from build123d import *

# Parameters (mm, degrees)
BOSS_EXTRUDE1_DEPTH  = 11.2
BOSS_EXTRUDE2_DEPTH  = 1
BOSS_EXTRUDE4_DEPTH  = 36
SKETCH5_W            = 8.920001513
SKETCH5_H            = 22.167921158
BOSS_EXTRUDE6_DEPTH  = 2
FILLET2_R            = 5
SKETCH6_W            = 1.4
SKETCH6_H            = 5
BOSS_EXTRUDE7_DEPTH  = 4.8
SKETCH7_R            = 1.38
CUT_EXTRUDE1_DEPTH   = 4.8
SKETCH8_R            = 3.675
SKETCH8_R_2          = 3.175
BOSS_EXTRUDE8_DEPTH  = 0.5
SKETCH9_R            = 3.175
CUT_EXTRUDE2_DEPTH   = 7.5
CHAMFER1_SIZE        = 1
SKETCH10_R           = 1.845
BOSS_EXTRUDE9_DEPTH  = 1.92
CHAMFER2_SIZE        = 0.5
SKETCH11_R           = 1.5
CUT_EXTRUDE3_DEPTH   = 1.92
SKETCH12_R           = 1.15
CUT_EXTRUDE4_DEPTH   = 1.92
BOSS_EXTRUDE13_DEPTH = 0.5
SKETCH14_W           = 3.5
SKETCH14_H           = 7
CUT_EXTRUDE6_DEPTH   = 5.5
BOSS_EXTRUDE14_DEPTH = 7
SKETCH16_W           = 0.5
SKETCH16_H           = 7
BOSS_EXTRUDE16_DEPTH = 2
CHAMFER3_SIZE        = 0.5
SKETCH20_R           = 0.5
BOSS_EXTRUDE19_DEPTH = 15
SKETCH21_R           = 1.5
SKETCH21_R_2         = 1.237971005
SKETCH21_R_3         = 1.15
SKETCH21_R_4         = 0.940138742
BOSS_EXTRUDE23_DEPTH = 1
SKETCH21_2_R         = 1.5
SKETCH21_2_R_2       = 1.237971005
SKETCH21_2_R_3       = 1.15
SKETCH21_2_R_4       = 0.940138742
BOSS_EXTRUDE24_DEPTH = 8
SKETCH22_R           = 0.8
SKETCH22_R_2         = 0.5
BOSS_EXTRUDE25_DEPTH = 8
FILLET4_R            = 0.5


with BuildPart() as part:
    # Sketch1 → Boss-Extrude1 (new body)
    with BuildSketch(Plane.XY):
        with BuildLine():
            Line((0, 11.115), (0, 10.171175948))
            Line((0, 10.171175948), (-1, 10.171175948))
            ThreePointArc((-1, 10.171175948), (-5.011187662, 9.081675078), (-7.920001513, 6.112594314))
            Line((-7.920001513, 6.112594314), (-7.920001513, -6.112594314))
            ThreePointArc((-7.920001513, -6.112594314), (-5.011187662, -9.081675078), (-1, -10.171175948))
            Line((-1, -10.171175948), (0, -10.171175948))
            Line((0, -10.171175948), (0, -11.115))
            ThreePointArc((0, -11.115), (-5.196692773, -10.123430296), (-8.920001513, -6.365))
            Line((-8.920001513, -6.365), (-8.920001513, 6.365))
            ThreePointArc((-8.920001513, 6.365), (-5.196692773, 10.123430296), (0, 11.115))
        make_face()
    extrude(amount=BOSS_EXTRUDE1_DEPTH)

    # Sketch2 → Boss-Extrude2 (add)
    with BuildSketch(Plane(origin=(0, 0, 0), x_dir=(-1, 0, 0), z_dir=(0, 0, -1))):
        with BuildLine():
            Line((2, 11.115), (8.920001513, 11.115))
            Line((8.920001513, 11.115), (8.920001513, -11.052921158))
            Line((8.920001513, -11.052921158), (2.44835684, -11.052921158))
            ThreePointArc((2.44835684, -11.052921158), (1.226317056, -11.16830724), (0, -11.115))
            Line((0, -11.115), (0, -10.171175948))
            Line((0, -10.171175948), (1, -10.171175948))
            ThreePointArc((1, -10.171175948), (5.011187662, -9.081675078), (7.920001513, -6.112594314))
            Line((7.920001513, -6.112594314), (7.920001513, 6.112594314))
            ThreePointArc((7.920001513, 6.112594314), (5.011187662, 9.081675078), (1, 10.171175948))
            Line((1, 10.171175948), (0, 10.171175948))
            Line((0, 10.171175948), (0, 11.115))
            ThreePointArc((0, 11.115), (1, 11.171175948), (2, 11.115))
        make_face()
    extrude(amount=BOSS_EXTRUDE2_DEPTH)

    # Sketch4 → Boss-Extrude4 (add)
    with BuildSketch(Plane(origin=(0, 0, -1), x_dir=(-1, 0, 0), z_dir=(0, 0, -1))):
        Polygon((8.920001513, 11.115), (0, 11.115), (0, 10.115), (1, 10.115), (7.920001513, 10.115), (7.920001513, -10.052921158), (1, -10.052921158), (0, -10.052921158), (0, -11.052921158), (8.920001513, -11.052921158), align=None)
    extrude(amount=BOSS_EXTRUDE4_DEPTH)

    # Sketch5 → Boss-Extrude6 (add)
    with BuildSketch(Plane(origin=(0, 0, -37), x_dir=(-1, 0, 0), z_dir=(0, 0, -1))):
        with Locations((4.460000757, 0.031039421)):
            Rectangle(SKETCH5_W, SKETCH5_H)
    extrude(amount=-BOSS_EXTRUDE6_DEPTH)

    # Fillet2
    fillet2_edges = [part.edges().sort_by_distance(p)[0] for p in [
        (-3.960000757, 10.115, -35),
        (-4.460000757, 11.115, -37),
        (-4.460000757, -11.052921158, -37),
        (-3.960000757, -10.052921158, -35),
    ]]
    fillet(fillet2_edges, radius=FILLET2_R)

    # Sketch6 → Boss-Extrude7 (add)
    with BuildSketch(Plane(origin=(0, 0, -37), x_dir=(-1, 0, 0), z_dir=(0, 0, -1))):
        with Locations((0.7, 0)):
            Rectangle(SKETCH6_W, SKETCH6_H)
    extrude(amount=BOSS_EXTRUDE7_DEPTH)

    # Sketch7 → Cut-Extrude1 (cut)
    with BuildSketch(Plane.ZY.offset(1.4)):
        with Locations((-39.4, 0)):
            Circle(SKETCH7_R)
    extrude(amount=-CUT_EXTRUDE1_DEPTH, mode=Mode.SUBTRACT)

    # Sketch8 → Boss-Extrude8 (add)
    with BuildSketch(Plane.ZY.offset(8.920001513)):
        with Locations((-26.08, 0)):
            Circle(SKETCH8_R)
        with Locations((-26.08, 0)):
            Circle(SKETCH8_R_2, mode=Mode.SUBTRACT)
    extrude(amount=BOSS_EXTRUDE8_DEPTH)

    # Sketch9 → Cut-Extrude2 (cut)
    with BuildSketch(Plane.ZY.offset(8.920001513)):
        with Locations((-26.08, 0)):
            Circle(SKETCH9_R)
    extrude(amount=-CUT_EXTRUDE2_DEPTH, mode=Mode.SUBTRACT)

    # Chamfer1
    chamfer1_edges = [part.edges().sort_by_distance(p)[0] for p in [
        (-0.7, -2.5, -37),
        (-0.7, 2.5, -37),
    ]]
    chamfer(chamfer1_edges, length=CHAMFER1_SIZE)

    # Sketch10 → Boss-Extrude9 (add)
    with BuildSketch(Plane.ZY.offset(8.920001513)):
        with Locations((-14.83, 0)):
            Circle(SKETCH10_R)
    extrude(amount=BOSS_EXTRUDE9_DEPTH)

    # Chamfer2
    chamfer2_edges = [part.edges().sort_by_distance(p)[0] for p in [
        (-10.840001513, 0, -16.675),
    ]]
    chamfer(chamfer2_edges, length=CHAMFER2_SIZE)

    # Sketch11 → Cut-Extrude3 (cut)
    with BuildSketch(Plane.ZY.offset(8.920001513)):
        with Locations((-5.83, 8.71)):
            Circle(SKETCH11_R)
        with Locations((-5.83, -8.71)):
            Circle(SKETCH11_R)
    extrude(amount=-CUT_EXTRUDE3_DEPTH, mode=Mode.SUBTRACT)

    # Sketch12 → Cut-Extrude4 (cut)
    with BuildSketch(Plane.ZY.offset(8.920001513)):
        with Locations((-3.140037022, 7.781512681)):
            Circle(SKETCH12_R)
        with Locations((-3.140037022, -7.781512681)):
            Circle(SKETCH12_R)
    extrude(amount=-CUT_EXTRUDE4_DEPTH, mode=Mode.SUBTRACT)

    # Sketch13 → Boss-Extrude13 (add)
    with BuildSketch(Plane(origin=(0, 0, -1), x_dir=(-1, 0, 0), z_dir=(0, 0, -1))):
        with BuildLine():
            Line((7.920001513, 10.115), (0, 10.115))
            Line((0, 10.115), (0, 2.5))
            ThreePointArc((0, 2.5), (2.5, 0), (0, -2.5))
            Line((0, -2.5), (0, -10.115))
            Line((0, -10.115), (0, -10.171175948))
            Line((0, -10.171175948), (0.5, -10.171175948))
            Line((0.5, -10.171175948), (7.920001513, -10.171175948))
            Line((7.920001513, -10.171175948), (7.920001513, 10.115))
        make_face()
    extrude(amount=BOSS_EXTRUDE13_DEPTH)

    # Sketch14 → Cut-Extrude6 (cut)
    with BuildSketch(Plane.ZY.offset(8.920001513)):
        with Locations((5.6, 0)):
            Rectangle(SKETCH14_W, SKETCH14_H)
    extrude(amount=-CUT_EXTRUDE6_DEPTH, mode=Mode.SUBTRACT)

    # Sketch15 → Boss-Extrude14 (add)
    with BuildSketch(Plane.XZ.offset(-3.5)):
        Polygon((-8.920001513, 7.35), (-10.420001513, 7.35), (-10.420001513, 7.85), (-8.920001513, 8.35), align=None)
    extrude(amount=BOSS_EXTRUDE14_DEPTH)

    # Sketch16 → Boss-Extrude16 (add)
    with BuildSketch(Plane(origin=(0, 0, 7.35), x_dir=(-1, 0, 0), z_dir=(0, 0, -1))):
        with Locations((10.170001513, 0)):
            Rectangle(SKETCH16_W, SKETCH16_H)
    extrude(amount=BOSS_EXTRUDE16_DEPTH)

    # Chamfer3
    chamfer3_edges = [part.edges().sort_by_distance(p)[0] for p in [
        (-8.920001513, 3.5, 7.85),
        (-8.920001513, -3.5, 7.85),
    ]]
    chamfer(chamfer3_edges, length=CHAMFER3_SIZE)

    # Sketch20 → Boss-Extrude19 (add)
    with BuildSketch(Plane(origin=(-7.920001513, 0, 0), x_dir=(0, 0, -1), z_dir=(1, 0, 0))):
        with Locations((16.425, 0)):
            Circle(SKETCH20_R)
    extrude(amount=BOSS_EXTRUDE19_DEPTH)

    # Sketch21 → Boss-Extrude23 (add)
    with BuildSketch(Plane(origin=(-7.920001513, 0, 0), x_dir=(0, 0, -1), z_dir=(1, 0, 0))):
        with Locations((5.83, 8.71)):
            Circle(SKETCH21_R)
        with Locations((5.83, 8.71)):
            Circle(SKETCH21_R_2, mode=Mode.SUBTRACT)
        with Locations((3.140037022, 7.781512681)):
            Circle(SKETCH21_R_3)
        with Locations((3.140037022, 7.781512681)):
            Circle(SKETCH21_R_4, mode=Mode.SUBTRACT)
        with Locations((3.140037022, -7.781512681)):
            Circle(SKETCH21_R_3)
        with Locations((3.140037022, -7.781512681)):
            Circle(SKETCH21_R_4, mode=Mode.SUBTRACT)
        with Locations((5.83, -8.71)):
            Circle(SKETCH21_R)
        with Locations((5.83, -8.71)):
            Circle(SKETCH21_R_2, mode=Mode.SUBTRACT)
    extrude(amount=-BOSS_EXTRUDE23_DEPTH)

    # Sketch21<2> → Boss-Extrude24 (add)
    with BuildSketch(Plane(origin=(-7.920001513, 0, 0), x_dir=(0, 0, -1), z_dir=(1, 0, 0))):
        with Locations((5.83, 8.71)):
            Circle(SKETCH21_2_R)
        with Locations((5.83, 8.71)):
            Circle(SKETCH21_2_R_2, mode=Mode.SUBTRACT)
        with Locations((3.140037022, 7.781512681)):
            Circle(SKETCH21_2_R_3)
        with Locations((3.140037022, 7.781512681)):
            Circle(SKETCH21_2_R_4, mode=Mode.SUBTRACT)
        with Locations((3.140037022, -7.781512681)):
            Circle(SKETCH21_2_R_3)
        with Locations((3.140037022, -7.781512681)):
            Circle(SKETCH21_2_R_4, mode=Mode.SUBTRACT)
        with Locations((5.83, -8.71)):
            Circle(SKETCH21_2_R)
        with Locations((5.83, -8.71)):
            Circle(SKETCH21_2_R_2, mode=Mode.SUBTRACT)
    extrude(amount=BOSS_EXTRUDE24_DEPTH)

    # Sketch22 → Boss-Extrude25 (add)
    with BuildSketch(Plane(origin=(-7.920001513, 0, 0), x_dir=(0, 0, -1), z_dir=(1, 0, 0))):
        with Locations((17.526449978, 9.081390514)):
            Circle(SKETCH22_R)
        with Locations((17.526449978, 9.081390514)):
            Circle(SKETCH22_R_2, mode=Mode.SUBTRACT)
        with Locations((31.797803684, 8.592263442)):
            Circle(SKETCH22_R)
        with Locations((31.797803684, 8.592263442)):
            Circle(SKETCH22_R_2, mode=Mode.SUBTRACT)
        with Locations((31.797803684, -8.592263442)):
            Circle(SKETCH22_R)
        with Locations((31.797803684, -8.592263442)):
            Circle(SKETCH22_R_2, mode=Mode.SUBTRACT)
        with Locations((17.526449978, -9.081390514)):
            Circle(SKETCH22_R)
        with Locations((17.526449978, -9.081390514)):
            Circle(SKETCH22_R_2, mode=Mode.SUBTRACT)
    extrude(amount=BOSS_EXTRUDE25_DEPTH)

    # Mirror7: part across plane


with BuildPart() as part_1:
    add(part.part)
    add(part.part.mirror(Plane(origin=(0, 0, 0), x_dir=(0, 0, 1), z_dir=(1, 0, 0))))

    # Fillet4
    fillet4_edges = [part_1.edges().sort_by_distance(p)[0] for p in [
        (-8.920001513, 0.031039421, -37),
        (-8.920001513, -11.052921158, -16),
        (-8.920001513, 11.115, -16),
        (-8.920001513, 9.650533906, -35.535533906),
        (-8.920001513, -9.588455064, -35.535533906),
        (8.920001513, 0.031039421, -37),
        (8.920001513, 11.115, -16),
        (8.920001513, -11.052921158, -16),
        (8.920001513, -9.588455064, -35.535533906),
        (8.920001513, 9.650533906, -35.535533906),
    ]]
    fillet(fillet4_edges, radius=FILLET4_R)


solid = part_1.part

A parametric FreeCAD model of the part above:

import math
import FreeCAD as App
import Part
import Sketcher


def edges_at(feature, points):
    """Names of the edges that pass closest to the given points."""
    edges = feature.Shape.Edges
    near = lambda p: min(range(len(edges)), key=lambda i: edges[i].distToShape(Part.Vertex(*p))[0])
    return sorted({f"Edge{near(p) + 1}" for p in points})

doc = App.newDocument("Part")
body = doc.addObject("PartDesign::Body", "Body")

sketch1 = body.newObject("Sketcher::SketchObject", "Sketch")
sketch1.AttachmentSupport = (doc.getObject("XY_Plane"), [""])
sketch1.MapMode = "FlatFace"
sketch1.addGeometry([
    Part.LineSegment(App.Vector(0, 10.2, 0), App.Vector(0, 11.1, 0)),
    Part.ArcOfCircle(Part.Circle(App.Vector(-1, 2.2, 0), App.Vector(0, 0, 1), 8.9), math.radians(84), math.radians(153)),
    Part.LineSegment(App.Vector(-8.9, 6.4, 0), App.Vector(-8.9, -6.4, 0)),
    Part.ArcOfCircle(Part.Circle(App.Vector(-1, -2.2, 0), App.Vector(0, 0, 1), 8.9), math.radians(-153), math.radians(-84)),
    Part.LineSegment(App.Vector(0, -11.1, 0), App.Vector(0, -10.2, 0)),
    Part.LineSegment(App.Vector(0, -10.2, 0), App.Vector(-1, -10.2, 0)),
    Part.ArcOfCircle(Part.Circle(App.Vector(-1, -2.2, 0), App.Vector(0, 0, 1), 7.9), math.radians(-151), math.radians(-90)),
    Part.LineSegment(App.Vector(-7.9, -6.1, 0), App.Vector(-7.9, 6.1, 0)),
    Part.ArcOfCircle(Part.Circle(App.Vector(-1, 2.2, 0), App.Vector(0, 0, 1), 7.9), math.radians(90), math.radians(151)),
    Part.LineSegment(App.Vector(-1, 10.2, 0), App.Vector(0, 10.2, 0)),
], False)
sketch1.addConstraint([
    Sketcher.Constraint("Coincident", 0, 2, 1, 1),
    Sketcher.Constraint("Coincident", 1, 2, 2, 1),
    Sketcher.Constraint("Coincident", 2, 2, 3, 1),
    Sketcher.Constraint("Coincident", 3, 2, 4, 1),
    Sketcher.Constraint("Coincident", 4, 2, 5, 1),
    Sketcher.Constraint("Tangent", 5, 2, 6, 2),
    Sketcher.Constraint("Coincident", 6, 1, 7, 1),
    Sketcher.Constraint("Coincident", 7, 2, 8, 2),
    Sketcher.Constraint("Tangent", 8, 1, 9, 1),
    Sketcher.Constraint("Coincident", 9, 2, 0, 1),
    Sketcher.Constraint("Vertical", 0),
    Sketcher.Constraint("Vertical", 2),
    Sketcher.Constraint("Vertical", 4),
    Sketcher.Constraint("Horizontal", 5),
    Sketcher.Constraint("Vertical", 7),
    Sketcher.Constraint("Horizontal", 9),
    Sketcher.Constraint("Coincident", 6, 3, 3, 3),
    Sketcher.Constraint("Coincident", 8, 3, 1, 3),
    Sketcher.Constraint("Equal", 1, 3),
    Sketcher.Constraint("Equal", 6, 8),
    Sketcher.Constraint("Symmetric", 0, 2, 3, 2, -1, 1),
    Sketcher.Constraint("Symmetric", 1, 3, 3, 3, -1),
    Sketcher.Constraint("DistanceX", 5, 2, 5, 1, 1.0),
    Sketcher.Constraint("DistanceX", 2, 2, 6, 1, 1.0),
    Sketcher.Constraint("DistanceY", 2, 2, 2, 1, 12.73),
    Sketcher.Constraint("DistanceX", 1, 2, -1, 1, 8.920002),
    Sketcher.Constraint("DistanceY", 1, 2, 0, 2, 4.75),
    Sketcher.Constraint("Radius", 6, 7.928694),
])
pad1 = body.newObject("PartDesign::Pad", "Pad")
pad1.Profile = sketch1
pad1.Length = 11.2

sketch2 = body.newObject("Sketcher::SketchObject", "Sketch001")
sketch2.AttachmentSupport = (doc.getObject("XY_Plane"), [""])
sketch2.MapMode = "FlatFace"
sketch2.addGeometry([
    Part.LineSegment(App.Vector(-8.9, 11.1, 0), App.Vector(-2, 11.1, 0)),
    Part.ArcOfCircle(Part.Circle(App.Vector(-1, 2.2, 0), App.Vector(0, 0, 1), 8.9), math.radians(83.57), math.radians(96.43)),
    Part.LineSegment(App.Vector(0, 11.1, 0), App.Vector(0, 10.2, 0)),
    Part.LineSegment(App.Vector(0, 10.2, 0), App.Vector(-1, 10.2, 0)),
    Part.ArcOfCircle(Part.Circle(App.Vector(-1, 2.2, 0), App.Vector(0, 0, 1), 7.9), math.radians(90), math.radians(151)),
    Part.LineSegment(App.Vector(-7.9, 6.1, 0), App.Vector(-7.9, -6.1, 0)),
    Part.ArcOfCircle(Part.Circle(App.Vector(-1, -2.2, 0), App.Vector(0, 0, 1), 7.9), math.radians(-151), math.radians(-90)),
    Part.LineSegment(App.Vector(-1, -10.2, 0), App.Vector(0, -10.2, 0)),
    Part.LineSegment(App.Vector(0, -10.2, 0), App.Vector(0, -11.1, 0)),
    Part.ArcOfCircle(Part.Circle(App.Vector(-1, -2.2, 0), App.Vector(0, 0, 1), 8.9), math.radians(-99.34), math.radians(-83.57)),
    Part.LineSegment(App.Vector(-2.4, -11.1, 0), App.Vector(-8.9, -11.1, 0)),
    Part.LineSegment(App.Vector(-8.9, -11.1, 0), App.Vector(-8.9, 11.1, 0)),
], False)
sketch2.addConstraint([
    Sketcher.Constraint("Coincident", 0, 2, 1, 2),
    Sketcher.Constraint("Coincident", 1, 1, 2, 1),
    Sketcher.Constraint("Coincident", 2, 2, 3, 1),
    Sketcher.Constraint("Tangent", 3, 2, 4, 1),
    Sketcher.Constraint("Coincident", 4, 2, 5, 1),
    Sketcher.Constraint("Coincident", 5, 2, 6, 1),
    Sketcher.Constraint("Tangent", 6, 2, 7, 1),
    Sketcher.Constraint("Coincident", 7, 2, 8, 1),
    Sketcher.Constraint("Coincident", 8, 2, 9, 2),
    Sketcher.Constraint("Coincident", 9, 1, 10, 1),
    Sketcher.Constraint("Coincident", 10, 2, 11, 1),
    Sketcher.Constraint("Coincident", 11, 2, 0, 1),
    Sketcher.Constraint("Horizontal", 0),
    Sketcher.Constraint("Vertical", 2),
    Sketcher.Constraint("Horizontal", 3),
    Sketcher.Constraint("Vertical", 5),
    Sketcher.Constraint("Horizontal", 7),
    Sketcher.Constraint("Vertical", 8),
    Sketcher.Constraint("Horizontal", 10),
    Sketcher.Constraint("Vertical", 11),
    Sketcher.Constraint("Coincident", 4, 3, 1, 3),
    Sketcher.Constraint("Coincident", 9, 3, 6, 3),
    Sketcher.Constraint("Equal", 4, 6),
    Sketcher.Constraint("Equal", 1, 9),
    Sketcher.Constraint("Symmetric", 2, 2, 7, 2, -1, 1),
    Sketcher.Constraint("Symmetric", 1, 1, 8, 2, -1),
    Sketcher.Constraint("Horizontal", 0, 2, 1, 1),
    Sketcher.Constraint("DistanceX", 3, 2, 3, 1, 1.0),
    Sketcher.Constraint("DistanceX", 10, 2, 5, 2, 1.0),
    Sketcher.Constraint("DistanceX", 0, 1, 0, 2, 6.920002),
    Sketcher.Constraint("DistanceY", -1, 1, 0, 2, 11.115),
    Sketcher.Constraint("Radius", 1, 8.928694),
    Sketcher.Constraint("Radius", 4, 7.928694),
    Sketcher.Constraint("DistanceY", 11, 1, 11, 2, 22.167921),
])
pad2 = body.newObject("PartDesign::Pad", "Pad001")
pad2.Profile = sketch2
pad2.Length = 1
pad2.Reversed = True

sketch3 = body.newObject("Sketcher::SketchObject", "Sketch002")
sketch3.AttachmentSupport = (doc.getObject("XY_Plane"), [""])
sketch3.MapMode = "FlatFace"
sketch3.AttachmentOffset = App.Placement(App.Vector(0, 0, -1), App.Rotation())
sketch3.addGeometry([
    Part.LineSegment(App.Vector(-8.9, 11.1, 0), App.Vector(0, 11.1, 0)),
    Part.LineSegment(App.Vector(0, 11.1, 0), App.Vector(0, 10.1, 0)),
    Part.LineSegment(App.Vector(0, 10.1, 0), App.Vector(-7.9, 10.1, 0)),
    Part.LineSegment(App.Vector(-7.9, 10.1, 0), App.Vector(-7.9, -10.1, 0)),
    Part.LineSegment(App.Vector(-7.9, -10.1, 0), App.Vector(0, -10.1, 0)),
    Part.LineSegment(App.Vector(0, -10.1, 0), App.Vector(0, -11.1, 0)),
    Part.LineSegment(App.Vector(0, -11.1, 0), App.Vector(-8.9, -11.1, 0)),
    Part.LineSegment(App.Vector(-8.9, -11.1, 0), App.Vector(-8.9, 11.1, 0)),
], False)
sketch3.addConstraint([
    Sketcher.Constraint("Coincident", 0, 2, 1, 1),
    Sketcher.Constraint("Coincident", 1, 2, 2, 1),
    Sketcher.Constraint("Coincident", 2, 2, 3, 1),
    Sketcher.Constraint("Coincident", 3, 2, 4, 1),
    Sketcher.Constraint("Coincident", 4, 2, 5, 1),
    Sketcher.Constraint("Coincident", 5, 2, 6, 1),
    Sketcher.Constraint("Coincident", 6, 2, 7, 1),
    Sketcher.Constraint("Coincident", 7, 2, 0, 1),
    Sketcher.Constraint("Horizontal", 0),
    Sketcher.Constraint("Vertical", 1),
    Sketcher.Constraint("Horizontal", 2),
    Sketcher.Constraint("Vertical", 3),
    Sketcher.Constraint("Horizontal", 4),
    Sketcher.Constraint("Vertical", 5),
    Sketcher.Constraint("Horizontal", 6),
    Sketcher.Constraint("Vertical", 7),
    Sketcher.Constraint("PointOnObject", 0, 2, -2),
    Sketcher.Constraint("PointOnObject", 4, 2, -2),
    Sketcher.Constraint("Equal", 1, 5),
    Sketcher.Constraint("DistanceY", 1, 2, 1, 1, 1.0),
    Sketcher.Constraint("DistanceX", 6, 2, 3, 2, 1.0),
    Sketcher.Constraint("DistanceX", 0, 1, 0, 2, 8.920002),
    Sketcher.Constraint("DistanceY", -1, 1, 0, 2, 11.115),
    Sketcher.Constraint("DistanceY", 3, 2, 3, 1, 20.167921),
])
pad3 = body.newObject("PartDesign::Pad", "Pad002")
pad3.Profile = sketch3
pad3.Length = 36
pad3.Reversed = True

sketch4 = body.newObject("Sketcher::SketchObject", "Sketch003")
sketch4.AttachmentSupport = (doc.getObject("XY_Plane"), [""])
sketch4.MapMode = "FlatFace"
sketch4.AttachmentOffset = App.Placement(App.Vector(0, 0, -37), App.Rotation())
sketch4.addGeometry([
    Part.LineSegment(App.Vector(0, 11, 0), App.Vector(0, -11, 0)),
    Part.LineSegment(App.Vector(0, -11, 0), App.Vector(-9, -11, 0)),
    Part.LineSegment(App.Vector(-9, -11, 0), App.Vector(-9, 11, 0)),
    Part.LineSegment(App.Vector(-9, 11, 0), App.Vector(0, 11, 0)),
], False)
sketch4.addConstraint([
    Sketcher.Constraint("Coincident", 0, 2, 1, 1),
    Sketcher.Constraint("Coincident", 1, 2, 2, 1),
    Sketcher.Constraint("Coincident", 2, 2, 3, 1),
    Sketcher.Constraint("Coincident", 3, 2, 0, 1),
    Sketcher.Constraint("Vertical", 0),
    Sketcher.Constraint("Horizontal", 1),
    Sketcher.Constraint("Vertical", 2),
    Sketcher.Constraint("Horizontal", 3),
    Sketcher.Constraint("PointOnObject", 0, 2, -2),
    Sketcher.Constraint("DistanceX", 1, 2, 1, 1, 8.920002),
    Sketcher.Constraint("DistanceY", -1, 1, 2, 2, 11.115),
    Sketcher.Constraint("DistanceY", 0, 2, 0, 1, 22.167921),
])
pad4 = body.newObject("PartDesign::Pad", "Pad003")
pad4.Profile = sketch4
pad4.Length = 2
doc.recompute()

fillet = body.newObject("PartDesign::Fillet", "Fillet")
fillet.Base = (pad4, edges_at(pad4, [
    (-3.96, 10.115, -35),
    (-4.46, 11.115, -37),
    (-4.46, -11.053, -37),
    (-3.96, -10.053, -35),
]))
fillet.Radius = 5

sketch5 = body.newObject("Sketcher::SketchObject", "Sketch004")
sketch5.AttachmentSupport = (doc.getObject("XY_Plane"), [""])
sketch5.MapMode = "FlatFace"
sketch5.AttachmentOffset = App.Placement(App.Vector(0, 0, -37), App.Rotation())
sketch5.addGeometry([
    Part.LineSegment(App.Vector(0, 2.5, 0), App.Vector(0, -2.5, 0)),
    Part.LineSegment(App.Vector(0, -2.5, 0), App.Vector(-1.4, -2.5, 0)),
    Part.LineSegment(App.Vector(-1.4, -2.5, 0), App.Vector(-1.4, 2.5, 0)),
    Part.LineSegment(App.Vector(-1.4, 2.5, 0), App.Vector(0, 2.5, 0)),
], False)
sketch5.addConstraint([
    Sketcher.Constraint("Coincident", 0, 2, 1, 1),
    Sketcher.Constraint("Coincident", 1, 2, 2, 1),
    Sketcher.Constraint("Coincident", 2, 2, 3, 1),
    Sketcher.Constraint("Coincident", 3, 2, 0, 1),
    Sketcher.Constraint("Vertical", 0),
    Sketcher.Constraint("Horizontal", 1),
    Sketcher.Constraint("Vertical", 2),
    Sketcher.Constraint("Horizontal", 3),
    Sketcher.Constraint("Symmetric", 0, 2, 3, 2, -1, 1),
    Sketcher.Constraint("DistanceY", 0, 2, 0, 1, 5.0),
    Sketcher.Constraint("DistanceX", 1, 2, 1, 1, 1.4),
])
pad5 = body.newObject("PartDesign::Pad", "Pad004")
pad5.Profile = sketch5
pad5.Length = 4.8
pad5.Reversed = True

sketch6 = body.newObject("Sketcher::SketchObject", "Sketch005")
sketch6.AttachmentSupport = (doc.getObject("YZ_Plane"), [""])
sketch6.MapMode = "FlatFace"
sketch6.AttachmentOffset = App.Placement(App.Vector(0, 0, -1.4), App.Rotation())
sketch6.addGeometry(Part.Circle(App.Vector(0, -39.4, 0), App.Vector(0, 0, 1), 1.4), False)
sketch6.addConstraint([
    Sketcher.Constraint("PointOnObject", 0, 3, -2),
    Sketcher.Constraint("Diameter", 0, 2.76),
    Sketcher.Constraint("DistanceY", 0, 3, -1, 1, 39.4),
])
pocket1 = body.newObject("PartDesign::Pocket", "Pocket")
pocket1.Profile = sketch6
pocket1.Length = 4.8
pocket1.Reversed = True

sketch7 = body.newObject("Sketcher::SketchObject", "Sketch006")
sketch7.AttachmentSupport = (doc.getObject("YZ_Plane"), [""])
sketch7.MapMode = "FlatFace"
sketch7.AttachmentOffset = App.Placement(App.Vector(0, 0, -8.920002), App.Rotation())
sketch7.addGeometry([
    Part.Circle(App.Vector(0, -26.1, 0), App.Vector(0, 0, 1), 3.7),
    Part.Circle(App.Vector(0, -26.1, 0), App.Vector(0, 0, 1), 3.2),
], False)
sketch7.addConstraint([
    Sketcher.Constraint("Coincident", 1, 3, 0, 3),
    Sketcher.Constraint("PointOnObject", 0, 3, -2),
    Sketcher.Constraint("Diameter", 0, 7.35),
    Sketcher.Constraint("Diameter", 1, 6.35),
    Sketcher.Constraint("DistanceY", 0, 3, -1, 1, 26.08),
])
pad6 = body.newObject("PartDesign::Pad", "Pad005")
pad6.Profile = sketch7
pad6.Length = 0.5
pad6.Reversed = True

sketch8 = body.newObject("Sketcher::SketchObject", "Sketch007")
sketch8.AttachmentSupport = (doc.getObject("YZ_Plane"), [""])
sketch8.MapMode = "FlatFace"
sketch8.AttachmentOffset = App.Placement(App.Vector(0, 0, -8.920002), App.Rotation())
sketch8.addGeometry(Part.Circle(App.Vector(0, -26.1, 0), App.Vector(0, 0, 1), 3.2), False)
sketch8.addConstraint([
    Sketcher.Constraint("PointOnObject", 0, 3, -2),
    Sketcher.Constraint("Diameter", 0, 6.35),
    Sketcher.Constraint("DistanceY", 0, 3, -1, 1, 26.08),
])
pocket2 = body.newObject("PartDesign::Pocket", "Pocket001")
pocket2.Profile = sketch8
pocket2.Length = 7.5
pocket2.Reversed = True
doc.recompute()

chamfer = body.newObject("PartDesign::Chamfer", "Chamfer")
chamfer.Base = (pocket2, edges_at(pocket2, [(-0.7, -2.5, -37), (-0.7, 2.5, -37)]))
chamfer.Size = 1

sketch9 = body.newObject("Sketcher::SketchObject", "Sketch008")
sketch9.AttachmentSupport = (doc.getObject("YZ_Plane"), [""])
sketch9.MapMode = "FlatFace"
sketch9.AttachmentOffset = App.Placement(App.Vector(0, 0, -8.920002), App.Rotation())
sketch9.addGeometry(Part.Circle(App.Vector(0, -14.8, 0), App.Vector(0, 0, 1), 1.8), False)
sketch9.addConstraint([
    Sketcher.Constraint("PointOnObject", 0, 3, -2),
    Sketcher.Constraint("Diameter", 0, 3.69),
    Sketcher.Constraint("DistanceY", 0, 3, -1, 1, 14.83),
])
pad7 = body.newObject("PartDesign::Pad", "Pad006")
pad7.Profile = sketch9
pad7.Length = 1.92
pad7.Reversed = True
doc.recompute()

chamfer2 = body.newObject("PartDesign::Chamfer", "Chamfer001")
chamfer2.Base = (pad7, edges_at(pad7, [(-10.84, 0, -16.675)]))
chamfer2.Size = 0.5

sketch10 = body.newObject("Sketcher::SketchObject", "Sketch009")
sketch10.AttachmentSupport = (doc.getObject("YZ_Plane"), [""])
sketch10.MapMode = "FlatFace"
sketch10.AttachmentOffset = App.Placement(App.Vector(0, 0, -8.920002), App.Rotation())
sketch10.addGeometry([
    Part.Circle(App.Vector(8.7, -5.8, 0), App.Vector(0, 0, 1), 1.5),
    Part.Circle(App.Vector(-8.7, -5.8, 0), App.Vector(0, 0, 1), 1.5),
], False)
sketch10.addConstraint([
    Sketcher.Constraint("Equal", 0, 1),
    Sketcher.Constraint("Symmetric", 0, 3, 1, 3, -2),
    Sketcher.Constraint("Diameter", 0, 3.0),
    Sketcher.Constraint("DistanceX", -1, 1, 0, 3, 8.71),
    Sketcher.Constraint("DistanceY", 0, 3, -1, 1, 5.83),
])
pocket3 = body.newObject("PartDesign::Pocket", "Pocket002")
pocket3.Profile = sketch10
pocket3.Length = 1.92
pocket3.Reversed = True

sketch11 = body.newObject("Sketcher::SketchObject", "Sketch010")
sketch11.AttachmentSupport = (doc.getObject("YZ_Plane"), [""])
sketch11.MapMode = "FlatFace"
sketch11.AttachmentOffset = App.Placement(App.Vector(0, 0, -8.920002), App.Rotation())
sketch11.addGeometry([
    Part.Circle(App.Vector(7.8, -3.1, 0), App.Vector(0, 0, 1), 1.1),
    Part.Circle(App.Vector(-7.8, -3.1, 0), App.Vector(0, 0, 1), 1.1),
], False)
sketch11.addConstraint([
    Sketcher.Constraint("Equal", 0, 1),
    Sketcher.Constraint("Symmetric", 0, 3, 1, 3, -2),
    Sketcher.Constraint("Diameter", 0, 2.3),
    Sketcher.Constraint("DistanceX", -1, 1, 0, 3, 7.781513),
    Sketcher.Constraint("DistanceY", 0, 3, -1, 1, 3.140037),
])
pocket4 = body.newObject("PartDesign::Pocket", "Pocket003")
pocket4.Profile = sketch11
pocket4.Length = 1.92
pocket4.Reversed = True

sketch12 = body.newObject("Sketcher::SketchObject", "Sketch011")
sketch12.AttachmentSupport = (doc.getObject("XY_Plane"), [""])
sketch12.MapMode = "FlatFace"
sketch12.AttachmentOffset = App.Placement(App.Vector(0, 0, -1), App.Rotation())
sketch12.addGeometry([
    Part.LineSegment(App.Vector(-7.9, 10.1, 0), App.Vector(0, 10.1, 0)),
    Part.LineSegment(App.Vector(0, 10.1, 0), App.Vector(0, 2.5, 0)),
    Part.ArcOfCircle(Part.Circle(App.Vector(0, 0, 0), App.Vector(0, 0, 1), 2.5), math.radians(90), math.radians(270)),
    Part.LineSegment(App.Vector(0, -2.5, 0), App.Vector(0, -10.2, 0)),
    Part.LineSegment(App.Vector(0, -10.2, 0), App.Vector(-7.9, -10.2, 0)),
    Part.LineSegment(App.Vector(-7.9, -10.2, 0), App.Vector(-7.9, 10.1, 0)),
], False)
sketch12.addConstraint([
    Sketcher.Constraint("Coincident", 0, 2, 1, 1),
    Sketcher.Constraint("Coincident", 1, 2, 2, 1),
    Sketcher.Constraint("Coincident", 2, 2, 3, 1),
    Sketcher.Constraint("Coincident", 3, 2, 4, 1),
    Sketcher.Constraint("Coincident", 4, 2, 5, 1),
    Sketcher.Constraint("Coincident", 5, 2, 0, 1),
    Sketcher.Constraint("Horizontal", 0),
    Sketcher.Constraint("Vertical", 1),
    Sketcher.Constraint("Vertical", 3),
    Sketcher.Constraint("Horizontal", 4),
    Sketcher.Constraint("Vertical", 5),
    Sketcher.Constraint("Coincident", 2, 3, -1, 1),
    Sketcher.Constraint("PointOnObject", 0, 2, -2),
    Sketcher.Constraint("PointOnObject", 2, 2, -2),
    Sketcher.Constraint("Radius", 2, 2.5),
    Sketcher.Constraint("DistanceX", 0, 1, 0, 2, 7.920002),
    Sketcher.Constraint("DistanceY", 1, 2, 1, 1, 7.615),
    Sketcher.Constraint("DistanceY", 3, 2, 3, 1, 7.671176),
])
pad8 = body.newObject("PartDesign::Pad", "Pad007")
pad8.Profile = sketch12
pad8.Length = 0.5
pad8.Reversed = True

sketch13 = body.newObject("Sketcher::SketchObject", "Sketch012")
sketch13.AttachmentSupport = (doc.getObject("YZ_Plane"), [""])
sketch13.MapMode = "FlatFace"
sketch13.AttachmentOffset = App.Placement(App.Vector(0, 0, -8.920002), App.Rotation())
sketch13.addGeometry([
    Part.LineSegment(App.Vector(3.5, 3.9, 0), App.Vector(-3.5, 3.9, 0)),
    Part.LineSegment(App.Vector(-3.5, 3.9, 0), App.Vector(-3.5, 7.3, 0)),
    Part.LineSegment(App.Vector(-3.5, 7.3, 0), App.Vector(3.5, 7.3, 0)),
    Part.LineSegment(App.Vector(3.5, 7.3, 0), App.Vector(3.5, 3.9, 0)),
], False)
sketch13.addConstraint([
    Sketcher.Constraint("Coincident", 0, 2, 1, 1),
    Sketcher.Constraint("Coincident", 1, 2, 2, 1),
    Sketcher.Constraint("Coincident", 2, 2, 3, 1),
    Sketcher.Constraint("Coincident", 3, 2, 0, 1),
    Sketcher.Constraint("Horizontal", 0),
    Sketcher.Constraint("Vertical", 1),
    Sketcher.Constraint("Horizontal", 2),
    Sketcher.Constraint("Vertical", 3),
    Sketcher.Constraint("DistanceX", 0, 2, 0, 1, 7.0),
    Sketcher.Constraint("DistanceY", 1, 1, 1, 2, 3.5),
    Sketcher.Constraint("DistanceX", 0, 2, -1, 1, 3.5),
    Sketcher.Constraint("DistanceY", -1, 1, 0, 2, 3.85),
])
pocket5 = body.newObject("PartDesign::Pocket", "Pocket004")
pocket5.Profile = sketch13
pocket5.Length = 5.5
pocket5.Reversed = True

sketch14 = body.newObject("Sketcher::SketchObject", "Sketch013")
sketch14.AttachmentSupport = (doc.getObject("XZ_Plane"), [""])
sketch14.MapMode = "FlatFace"
sketch14.AttachmentOffset = App.Placement(App.Vector(0, 0, -3.5), App.Rotation())
sketch14.addGeometry([
    Part.LineSegment(App.Vector(-10.4, 7.3, 0), App.Vector(-8.9, 7.3, 0)),
    Part.LineSegment(App.Vector(-8.9, 7.3, 0), App.Vector(-8.9, 8.3, 0)),
    Part.LineSegment(App.Vector(-8.9, 8.3, 0), App.Vector(-10.4, 7.8, 0)),
    Part.LineSegment(App.Vector(-10.4, 7.8, 0), App.Vector(-10.4, 7.3, 0)),
], False)
sketch14.addConstraint([
    Sketcher.Constraint("Coincident", 0, 2, 1, 1),
    Sketcher.Constraint("Coincident", 1, 2, 2, 1),
    Sketcher.Constraint("Coincident", 2, 2, 3, 1),
    Sketcher.Constraint("Coincident", 3, 2, 0, 1),
    Sketcher.Constraint("Horizontal", 0),
    Sketcher.Constraint("Vertical", 1),
    Sketcher.Constraint("Vertical", 3),
    Sketcher.Constraint("DistanceY", 1, 1, 1, 2, 1.0),
    Sketcher.Constraint("DistanceX", 0, 1, 0, 2, 1.5),
    Sketcher.Constraint("DistanceY", 3, 2, 3, 1, 0.5),
    Sketcher.Constraint("DistanceX", 0, 2, -1, 1, 8.920002),
    Sketcher.Constraint("DistanceY", -1, 1, 0, 2, 7.35),
])
pad9 = body.newObject("PartDesign::Pad", "Pad008")
pad9.Profile = sketch14
pad9.Length = 7

sketch15 = body.newObject("Sketcher::SketchObject", "Sketch014")
sketch15.AttachmentSupport = (doc.getObject("XY_Plane"), [""])
sketch15.MapMode = "FlatFace"
sketch15.AttachmentOffset = App.Placement(App.Vector(0, 0, 7.35), App.Rotation())
sketch15.addGeometry([
    Part.LineSegment(App.Vector(-9.9, 3.5, 0), App.Vector(-9.9, -3.5, 0)),
    Part.LineSegment(App.Vector(-9.9, -3.5, 0), App.Vector(-10.4, -3.5, 0)),
    Part.LineSegment(App.Vector(-10.4, -3.5, 0), App.Vector(-10.4, 3.5, 0)),
    Part.LineSegment(App.Vector(-10.4, 3.5, 0), App.Vector(-9.9, 3.5, 0)),
], False)
sketch15.addConstraint([
    Sketcher.Constraint("Coincident", 0, 2, 1, 1),
    Sketcher.Constraint("Coincident", 1, 2, 2, 1),
    Sketcher.Constraint("Coincident", 2, 2, 3, 1),
    Sketcher.Constraint("Coincident", 3, 2, 0, 1),
    Sketcher.Constraint("Vertical", 0),
    Sketcher.Constraint("Horizontal", 1),
    Sketcher.Constraint("Vertical", 2),
    Sketcher.Constraint("Horizontal", 3),
    Sketcher.Constraint("DistanceY", 0, 2, 0, 1, 7.0),
    Sketcher.Constraint("DistanceX", 1, 2, 1, 1, 0.5),
    Sketcher.Constraint("DistanceY", 0, 2, -1, 1, 3.5),
    Sketcher.Constraint("DistanceX", 0, 2, -1, 1, 9.920002),
])
pad10 = body.newObject("PartDesign::Pad", "Pad009")
pad10.Profile = sketch15
pad10.Length = 2
pad10.Reversed = True
doc.recompute()

chamfer3 = body.newObject("PartDesign::Chamfer", "Chamfer002")
chamfer3.Base = (pad10, edges_at(pad10, [(-8.92, 3.5, 7.85), (-8.92, -3.5, 7.85)]))
chamfer3.Size = 0.5

sketch16 = body.newObject("Sketcher::SketchObject", "Sketch015")
sketch16.AttachmentSupport = (doc.getObject("YZ_Plane"), [""])
sketch16.MapMode = "FlatFace"
sketch16.AttachmentOffset = App.Placement(App.Vector(0, 0, -7.920002), App.Rotation())
sketch16.addGeometry(Part.Circle(App.Vector(0, -16.4, 0), App.Vector(0, 0, 1), 0.5), False)
sketch16.addConstraint([
    Sketcher.Constraint("PointOnObject", 0, 3, -2),
    Sketcher.Constraint("Diameter", 0, 1.0),
    Sketcher.Constraint("DistanceY", 0, 3, -1, 1, 16.425),
])
pad11 = body.newObject("PartDesign::Pad", "Pad010")
pad11.Profile = sketch16
pad11.Length = 15

sketch17 = body.newObject("Sketcher::SketchObject", "Sketch016")
sketch17.AttachmentSupport = (doc.getObject("YZ_Plane"), [""])
sketch17.MapMode = "FlatFace"
sketch17.AttachmentOffset = App.Placement(App.Vector(0, 0, -7.920002), App.Rotation())
sketch17.addGeometry([
    Part.Circle(App.Vector(8.7, -5.8, 0), App.Vector(0, 0, 1), 1.5),
    Part.Circle(App.Vector(8.7, -5.8, 0), App.Vector(0, 0, 1), 1.2),
    Part.Circle(App.Vector(7.8, -3.1, 0), App.Vector(0, 0, 1), 1.1),
    Part.Circle(App.Vector(7.8, -3.1, 0), App.Vector(0, 0, 1), 0.9),
    Part.Circle(App.Vector(-7.8, -3.1, 0), App.Vector(0, 0, 1), 1.1),
    Part.Circle(App.Vector(-7.8, -3.1, 0), App.Vector(0, 0, 1), 0.9),
    Part.Circle(App.Vector(-8.7, -5.8, 0), App.Vector(0, 0, 1), 1.5),
    Part.Circle(App.Vector(-8.7, -5.8, 0), App.Vector(0, 0, 1), 1.2),
], False)
sketch17.addConstraint([
    Sketcher.Constraint("Coincident", 1, 3, 0, 3),
    Sketcher.Constraint("Coincident", 3, 3, 2, 3),
    Sketcher.Constraint("Coincident", 5, 3, 4, 3),
    Sketcher.Constraint("Coincident", 7, 3, 6, 3),
    Sketcher.Constraint("Equal", 2, 4),
    Sketcher.Constraint("Equal", 3, 5),
    Sketcher.Constraint("Equal", 0, 6),
    Sketcher.Constraint("Equal", 1, 7),
    Sketcher.Constraint("Symmetric", 2, 3, 4, 3, -2),
    Sketcher.Constraint("Symmetric", 0, 3, 6, 3, -2),
    Sketcher.Constraint("Diameter", 0, 3.0),
    Sketcher.Constraint("Diameter", 2, 2.3),
    Sketcher.Constraint("DistanceX", -1, 1, 0, 3, 8.71),
    Sketcher.Constraint("DistanceY", 0, 3, -1, 1, 5.83),
    Sketcher.Constraint("Diameter", 1, 2.475942),
    Sketcher.Constraint("Diameter", 3, 1.880277),
    Sketcher.Constraint("DistanceX", -1, 1, 2, 3, 7.781513),
    Sketcher.Constraint("DistanceY", 2, 3, -1, 1, 3.140037),
])
pad12 = body.newObject("PartDesign::Pad", "Pad011")
pad12.Profile = sketch17
pad12.Length = 1
pad12.Reversed = True

sketch18 = body.newObject("Sketcher::SketchObject", "Sketch017")
sketch18.AttachmentSupport = (doc.getObject("YZ_Plane"), [""])
sketch18.MapMode = "FlatFace"
sketch18.AttachmentOffset = App.Placement(App.Vector(0, 0, -7.920002), App.Rotation())
sketch18.addGeometry([
    Part.Circle(App.Vector(8.7, -5.8, 0), App.Vector(0, 0, 1), 1.5),
    Part.Circle(App.Vector(8.7, -5.8, 0), App.Vector(0, 0, 1), 1.2),
    Part.Circle(App.Vector(7.8, -3.1, 0), App.Vector(0, 0, 1), 1.1),
    Part.Circle(App.Vector(7.8, -3.1, 0), App.Vector(0, 0, 1), 0.9),
    Part.Circle(App.Vector(-7.8, -3.1, 0), App.Vector(0, 0, 1), 1.1),
    Part.Circle(App.Vector(-7.8, -3.1, 0), App.Vector(0, 0, 1), 0.9),
    Part.Circle(App.Vector(-8.7, -5.8, 0), App.Vector(0, 0, 1), 1.5),
    Part.Circle(App.Vector(-8.7, -5.8, 0), App.Vector(0, 0, 1), 1.2),
], False)
sketch18.addConstraint([
    Sketcher.Constraint("Coincident", 1, 3, 0, 3),
    Sketcher.Constraint("Coincident", 3, 3, 2, 3),
    Sketcher.Constraint("Coincident", 5, 3, 4, 3),
    Sketcher.Constraint("Coincident", 7, 3, 6, 3),
    Sketcher.Constraint("Equal", 2, 4),
    Sketcher.Constraint("Equal", 3, 5),
    Sketcher.Constraint("Equal", 0, 6),
    Sketcher.Constraint("Equal", 1, 7),
    Sketcher.Constraint("Symmetric", 2, 3, 4, 3, -2),
    Sketcher.Constraint("Symmetric", 0, 3, 6, 3, -2),
    Sketcher.Constraint("Diameter", 0, 3.0),
    Sketcher.Constraint("Diameter", 2, 2.3),
    Sketcher.Constraint("DistanceX", -1, 1, 0, 3, 8.71),
    Sketcher.Constraint("DistanceY", 0, 3, -1, 1, 5.83),
    Sketcher.Constraint("Diameter", 1, 2.475942),
    Sketcher.Constraint("Diameter", 3, 1.880277),
    Sketcher.Constraint("DistanceX", -1, 1, 2, 3, 7.781513),
    Sketcher.Constraint("DistanceY", 2, 3, -1, 1, 3.140037),
])
pad13 = body.newObject("PartDesign::Pad", "Pad012")
pad13.Profile = sketch18
pad13.Length = 8

sketch19 = body.newObject("Sketcher::SketchObject", "Sketch018")
sketch19.AttachmentSupport = (doc.getObject("YZ_Plane"), [""])
sketch19.MapMode = "FlatFace"
sketch19.AttachmentOffset = App.Placement(App.Vector(0, 0, -7.920002), App.Rotation())
sketch19.addGeometry([
    Part.Circle(App.Vector(9.1, -17.5, 0), App.Vector(0, 0, 1), 0.8),
    Part.Circle(App.Vector(9.1, -17.5, 0), App.Vector(0, 0, 1), 0.5),
    Part.Circle(App.Vector(8.6, -31.8, 0), App.Vector(0, 0, 1), 0.8),
    Part.Circle(App.Vector(8.6, -31.8, 0), App.Vector(0, 0, 1), 0.5),
    Part.Circle(App.Vector(-8.6, -31.8, 0), App.Vector(0, 0, 1), 0.8),
    Part.Circle(App.Vector(-8.6, -31.8, 0), App.Vector(0, 0, 1), 0.5),
    Part.Circle(App.Vector(-9.1, -17.5, 0), App.Vector(0, 0, 1), 0.8),
    Part.Circle(App.Vector(-9.1, -17.5, 0), App.Vector(0, 0, 1), 0.5),
], False)
sketch19.addConstraint([
    Sketcher.Constraint("Coincident", 1, 3, 0, 3),
    Sketcher.Constraint("Coincident", 3, 3, 2, 3),
    Sketcher.Constraint("Coincident", 5, 3, 4, 3),
    Sketcher.Constraint("Coincident", 7, 3, 6, 3),
    Sketcher.Constraint("Equal", 0, 2),
    Sketcher.Constraint("Equal", 1, 3),
    Sketcher.Constraint("Equal", 2, 4),
    Sketcher.Constraint("Equal", 3, 5),
    Sketcher.Constraint("Equal", 4, 6),
    Sketcher.Constraint("Equal", 5, 7),
    Sketcher.Constraint("Symmetric", 2, 3, 4, 3, -2),
    Sketcher.Constraint("Symmetric", 0, 3, 6, 3, -2),
    Sketcher.Constraint("Diameter", 1, 1.0),
    Sketcher.Constraint("Diameter", 0, 1.6),
    Sketcher.Constraint("DistanceX", -1, 1, 0, 3, 9.081391),
    Sketcher.Constraint("DistanceY", 0, 3, -1, 1, 17.52645),
    Sketcher.Constraint("DistanceX", -1, 1, 2, 3, 8.592263),
    Sketcher.Constraint("DistanceY", 2, 3, -1, 1, 31.797804),
])
pad14 = body.newObject("PartDesign::Pad", "Pad013")
pad14.Profile = sketch19
pad14.Length = 8
body2 = doc.addObject("PartDesign::Body", "Body001")
doc.recompute()

body2.BaseFeature = body
doc.recompute()

mirroring = doc.addObject("Part::Mirroring", "Mirroring")
mirroring.Source = body
mirroring.Base = App.Vector(0, 0, 0)
mirroring.Normal = App.Vector(1, 0, 0)
body3 = doc.addObject("PartDesign::Body", "Body002")
body3.BaseFeature = mirroring
boolean = body2.newObject("PartDesign::Boolean", "Boolean")
boolean.Type = "Fuse"
boolean.addObjects([body3])
doc.recompute()

fillet2 = body2.newObject("PartDesign::Fillet", "Fillet001")
fillet2.Base = (boolean, edges_at(boolean, [
    (-8.92, 0.031, -37),
    (-8.92, -11.053, -16),
    (-8.92, 11.115, -16),
    (-8.92, 9.651, -35.536),
    (-8.92, -9.588, -35.536),
    (8.92, 0.031, -37),
    (8.92, 11.115, -16),
    (8.92, -11.053, -16),
    (8.92, -9.588, -35.536),
    (8.92, 9.651, -35.536),
]))
fillet2.Radius = 0.5
mirroring.Visibility = False

doc.recompute()
